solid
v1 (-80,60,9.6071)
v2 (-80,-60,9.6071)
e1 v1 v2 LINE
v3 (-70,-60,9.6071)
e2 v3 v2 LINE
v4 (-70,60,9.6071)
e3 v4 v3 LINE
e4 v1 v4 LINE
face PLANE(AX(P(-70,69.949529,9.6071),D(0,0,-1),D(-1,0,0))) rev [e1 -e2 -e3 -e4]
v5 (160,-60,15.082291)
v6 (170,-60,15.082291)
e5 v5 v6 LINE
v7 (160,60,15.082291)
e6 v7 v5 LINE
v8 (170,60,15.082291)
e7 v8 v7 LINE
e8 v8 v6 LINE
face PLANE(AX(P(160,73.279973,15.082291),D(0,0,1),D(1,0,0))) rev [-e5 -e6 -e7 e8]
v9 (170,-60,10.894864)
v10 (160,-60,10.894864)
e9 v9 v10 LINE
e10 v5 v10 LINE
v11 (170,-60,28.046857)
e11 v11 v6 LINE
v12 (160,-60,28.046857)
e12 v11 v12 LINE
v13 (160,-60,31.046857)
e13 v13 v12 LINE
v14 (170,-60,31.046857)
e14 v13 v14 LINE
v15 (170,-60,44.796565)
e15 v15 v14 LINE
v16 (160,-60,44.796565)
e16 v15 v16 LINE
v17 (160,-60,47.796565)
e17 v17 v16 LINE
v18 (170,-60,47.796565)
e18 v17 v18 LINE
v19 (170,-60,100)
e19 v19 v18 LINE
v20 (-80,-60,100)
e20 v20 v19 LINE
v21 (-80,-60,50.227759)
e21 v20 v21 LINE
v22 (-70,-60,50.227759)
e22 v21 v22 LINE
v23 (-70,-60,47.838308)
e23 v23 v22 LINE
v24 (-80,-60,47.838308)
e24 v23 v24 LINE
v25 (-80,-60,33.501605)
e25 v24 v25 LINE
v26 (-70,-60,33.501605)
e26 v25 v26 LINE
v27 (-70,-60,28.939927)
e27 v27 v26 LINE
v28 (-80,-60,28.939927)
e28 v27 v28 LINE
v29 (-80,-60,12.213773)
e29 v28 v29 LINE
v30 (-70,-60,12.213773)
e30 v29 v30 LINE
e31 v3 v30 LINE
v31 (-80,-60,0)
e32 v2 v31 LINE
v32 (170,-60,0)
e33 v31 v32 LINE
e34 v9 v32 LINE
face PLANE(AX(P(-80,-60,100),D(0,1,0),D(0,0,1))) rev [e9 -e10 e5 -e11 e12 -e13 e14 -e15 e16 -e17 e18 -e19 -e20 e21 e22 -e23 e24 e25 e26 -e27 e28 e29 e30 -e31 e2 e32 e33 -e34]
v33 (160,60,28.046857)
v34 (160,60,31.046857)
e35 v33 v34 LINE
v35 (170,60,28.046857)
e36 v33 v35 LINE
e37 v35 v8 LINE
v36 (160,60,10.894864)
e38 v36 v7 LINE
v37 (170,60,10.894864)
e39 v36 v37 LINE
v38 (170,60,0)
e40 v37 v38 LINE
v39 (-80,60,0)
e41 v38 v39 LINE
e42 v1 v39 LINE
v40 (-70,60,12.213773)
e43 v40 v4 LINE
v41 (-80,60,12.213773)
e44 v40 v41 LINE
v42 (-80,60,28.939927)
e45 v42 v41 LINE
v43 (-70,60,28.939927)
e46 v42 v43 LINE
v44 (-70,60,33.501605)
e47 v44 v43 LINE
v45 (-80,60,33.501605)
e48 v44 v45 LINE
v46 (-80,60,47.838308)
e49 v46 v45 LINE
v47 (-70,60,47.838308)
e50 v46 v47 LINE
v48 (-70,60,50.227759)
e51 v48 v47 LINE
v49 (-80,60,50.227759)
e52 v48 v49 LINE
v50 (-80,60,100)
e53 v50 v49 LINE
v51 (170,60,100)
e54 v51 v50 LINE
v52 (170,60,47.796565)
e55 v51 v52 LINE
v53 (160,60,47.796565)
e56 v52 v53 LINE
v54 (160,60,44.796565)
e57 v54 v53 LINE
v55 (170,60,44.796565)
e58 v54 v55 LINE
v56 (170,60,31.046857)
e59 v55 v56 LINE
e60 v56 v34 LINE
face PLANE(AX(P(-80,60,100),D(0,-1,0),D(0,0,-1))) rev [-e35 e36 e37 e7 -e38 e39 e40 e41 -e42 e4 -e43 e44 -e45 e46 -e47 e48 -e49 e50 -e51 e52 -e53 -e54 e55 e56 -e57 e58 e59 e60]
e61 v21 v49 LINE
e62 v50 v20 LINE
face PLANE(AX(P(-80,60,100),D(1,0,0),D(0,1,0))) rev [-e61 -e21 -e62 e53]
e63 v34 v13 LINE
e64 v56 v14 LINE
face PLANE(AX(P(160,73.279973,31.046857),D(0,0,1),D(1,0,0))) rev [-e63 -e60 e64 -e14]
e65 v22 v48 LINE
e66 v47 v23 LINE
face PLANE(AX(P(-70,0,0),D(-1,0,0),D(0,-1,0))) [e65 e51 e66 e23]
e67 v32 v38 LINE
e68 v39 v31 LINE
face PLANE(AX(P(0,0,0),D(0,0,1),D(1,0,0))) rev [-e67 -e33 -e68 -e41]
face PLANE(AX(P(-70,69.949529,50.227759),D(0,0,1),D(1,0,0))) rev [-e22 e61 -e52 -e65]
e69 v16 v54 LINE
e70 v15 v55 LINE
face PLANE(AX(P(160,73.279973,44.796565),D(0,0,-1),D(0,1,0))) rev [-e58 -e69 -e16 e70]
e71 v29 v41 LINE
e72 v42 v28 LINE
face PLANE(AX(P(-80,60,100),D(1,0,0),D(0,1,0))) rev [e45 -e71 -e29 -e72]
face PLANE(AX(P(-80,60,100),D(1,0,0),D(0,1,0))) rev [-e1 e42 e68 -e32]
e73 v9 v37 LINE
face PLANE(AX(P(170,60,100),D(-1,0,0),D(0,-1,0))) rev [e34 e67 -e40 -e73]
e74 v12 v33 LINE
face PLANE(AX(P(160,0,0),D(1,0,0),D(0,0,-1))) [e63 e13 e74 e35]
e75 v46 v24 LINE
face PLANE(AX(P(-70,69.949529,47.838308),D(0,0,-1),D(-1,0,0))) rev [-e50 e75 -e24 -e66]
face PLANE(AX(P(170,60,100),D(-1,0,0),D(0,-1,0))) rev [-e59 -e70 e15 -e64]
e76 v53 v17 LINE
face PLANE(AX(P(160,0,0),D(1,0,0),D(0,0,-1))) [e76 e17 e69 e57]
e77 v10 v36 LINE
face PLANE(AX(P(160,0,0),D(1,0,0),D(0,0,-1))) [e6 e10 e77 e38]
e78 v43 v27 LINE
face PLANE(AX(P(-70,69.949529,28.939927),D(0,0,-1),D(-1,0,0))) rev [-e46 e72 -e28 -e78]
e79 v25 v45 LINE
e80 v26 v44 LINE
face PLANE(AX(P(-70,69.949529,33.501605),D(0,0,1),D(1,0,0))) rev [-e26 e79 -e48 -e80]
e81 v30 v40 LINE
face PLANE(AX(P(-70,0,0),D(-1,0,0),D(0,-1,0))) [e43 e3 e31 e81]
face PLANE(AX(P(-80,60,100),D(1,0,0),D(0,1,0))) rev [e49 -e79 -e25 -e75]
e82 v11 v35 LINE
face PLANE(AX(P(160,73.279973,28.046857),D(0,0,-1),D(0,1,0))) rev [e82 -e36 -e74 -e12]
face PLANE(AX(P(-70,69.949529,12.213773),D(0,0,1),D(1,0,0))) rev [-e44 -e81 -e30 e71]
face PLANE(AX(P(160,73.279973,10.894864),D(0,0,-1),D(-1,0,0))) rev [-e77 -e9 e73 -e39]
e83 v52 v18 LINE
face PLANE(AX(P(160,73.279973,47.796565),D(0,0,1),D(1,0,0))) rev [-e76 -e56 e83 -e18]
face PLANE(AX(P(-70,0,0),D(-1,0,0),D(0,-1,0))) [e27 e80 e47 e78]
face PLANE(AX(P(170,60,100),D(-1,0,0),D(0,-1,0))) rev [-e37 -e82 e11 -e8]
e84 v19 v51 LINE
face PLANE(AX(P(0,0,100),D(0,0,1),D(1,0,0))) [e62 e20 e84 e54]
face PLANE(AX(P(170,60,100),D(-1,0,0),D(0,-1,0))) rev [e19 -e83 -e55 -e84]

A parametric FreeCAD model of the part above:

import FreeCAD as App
import Part
import Sketcher
from FreeCAD import Vector
Q = App.Units.Quantity

doc = App.newDocument("Part")
body = doc.addObject("PartDesign::Body", "Body")

# Sketch on XY plane
sketch1 = doc.addObject("Sketcher::SketchObject", "Sketch")
body.addObject(sketch1)
sketch1.AttachmentSupport = (doc.XY_Plane, [""])
sketch1.MapMode = "FlatFace"
sketch1.addGeometry([
    Part.LineSegment(Vector(-80, 60, 0), Vector(-80, -60, 0)),
    Part.LineSegment(Vector(-80, -60, 0), Vector(170, -60, 0)),
    Part.LineSegment(Vector(170, -60, 0), Vector(170, 60, 0)),
    Part.LineSegment(Vector(170, 60, 0), Vector(-80, 60, 0)),
], False)
sketch1.addConstraint([
    Sketcher.Constraint("Coincident", 0, 2, 1, 1),
    Sketcher.Constraint("Coincident", 1, 2, 2, 1),
    Sketcher.Constraint("Coincident", 2, 2, 3, 1),
    Sketcher.Constraint("Coincident", 3, 2, 0, 1),
    Sketcher.Constraint("Vertical", 0),
    Sketcher.Constraint("Horizontal", 1),
    Sketcher.Constraint("Vertical", 2),
    Sketcher.Constraint("Horizontal", 3),
    Sketcher.Constraint("DistanceX", 1, 1, 1, 2, Q("250 mm")),
    Sketcher.Constraint("DistanceY", 0, 2, 0, 1, Q("120 mm")),
    Sketcher.Constraint("DistanceX", 0, 2, -1, 1, Q("80 mm")),
    Sketcher.Constraint("DistanceY", 0, 2, -1, 1, Q("60 mm")),
])
pad1 = doc.addObject("PartDesign::Pad", "Pad")
body.addObject(pad1)
pad1.Profile = sketch1
pad1.Length = 100

# Sketch on YZ plane
sketch2 = doc.addObject("Sketcher::SketchObject", "Sketch001")
body.addObject(sketch2)
sketch2.AttachmentSupport = (doc.YZ_Plane, [""])
sketch2.MapMode = "FlatFace"
sketch2.AttachmentOffset = App.Placement(Vector(0, 0, 170), App.Rotation())
sketch2.addGeometry([
    Part.LineSegment(Vector(73.3, 47.8, 0), Vector(-67.8, 47.8, 0)),  # 0
    Part.LineSegment(Vector(-67.8, 47.8, 0), Vector(-67.8, 44.8, 0)),  # 1
    Part.LineSegment(Vector(-67.8, 44.8, 0), Vector(73.3, 44.8, 0)),  # 2
    Part.LineSegment(Vector(73.3, 44.8, 0), Vector(73.3, 47.8, 0)),  # 3
    Part.LineSegment(Vector(73.3, 31, 0), Vector(-67.8, 31, 0)),  # 4
    Part.LineSegment(Vector(-67.8, 31, 0), Vector(-67.8, 28, 0)),  # 5
    Part.LineSegment(Vector(-67.8, 28, 0), Vector(73.3, 28, 0)),  # 6
    Part.LineSegment(Vector(73.3, 28, 0), Vector(73.3, 31, 0)),  # 7
    Part.LineSegment(Vector(73.3, 15.1, 0), Vector(-67.8, 15.1, 0)),  # 8
    Part.LineSegment(Vector(-67.8, 15.1, 0), Vector(-67.8, 10.9, 0)),  # 9
    Part.LineSegment(Vector(-67.8, 10.9, 0), Vector(73.3, 10.9, 0)),  # 10
    Part.LineSegment(Vector(73.3, 10.9, 0), Vector(73.3, 15.1, 0)),  # 11
], False)
sketch2.addConstraint([
    Sketcher.Constraint("Coincident", 0, 2, 1, 1),
    Sketcher.Constraint("Coincident", 1, 2, 2, 1),
    Sketcher.Constraint("Coincident", 2, 2, 3, 1),
    Sketcher.Constraint("Coincident", 3, 2, 0, 1),
    Sketcher.Constraint("Coincident", 4, 2, 5, 1),
    Sketcher.Constraint("Coincident", 5, 2, 6, 1),
    Sketcher.Constraint("Coincident", 6, 2, 7, 1),
    Sketcher.Constraint("Coincident", 7, 2, 4, 1),
    Sketcher.Constraint("Coincident", 8, 2, 9, 1),
    Sketcher.Constraint("Coincident", 9, 2, 10, 1),
    Sketcher.Constraint("Coincident", 10, 2, 11, 1),
    Sketcher.Constraint("Coincident", 11, 2, 8, 1),
    Sketcher.Constraint("Horizontal", 0),
    Sketcher.Constraint("Vertical", 1),
    Sketcher.Constraint("Horizontal", 2),
    Sketcher.Constraint("Vertical", 3),
    Sketcher.Constraint("Horizontal", 4),
    Sketcher.Constraint("Vertical", 5),
    Sketcher.Constraint("Horizontal", 6),
    Sketcher.Constraint("Vertical", 7),
    Sketcher.Constraint("Horizontal", 8),
    Sketcher.Constraint("Vertical", 9),
    Sketcher.Constraint("Horizontal", 10),
    Sketcher.Constraint("Vertical", 11),
    Sketcher.Constraint("Vertical", 1, 2, 4, 2),
    Sketcher.Constraint("Vertical", 3, 2, 6, 2),
    Sketcher.Constraint("Vertical", 5, 2, 8, 2),
    Sketcher.Constraint("Vertical", 7, 2, 10, 2),
    Sketcher.Constraint("Equal", 3, 5),
    Sketcher.Constraint("DistanceY", 1, 2, 1, 1, Q("3 mm")),
    Sketcher.Constraint("DistanceY", 9, 2, 1, 2, Q("33.901701 mm")),
    Sketcher.Constraint("DistanceX", 0, 2, 0, 1, Q("141.063948 mm")),
    Sketcher.Constraint("DistanceY", 9, 2, 9, 1, Q("4.187427 mm")),
    Sketcher.Constraint("DistanceY", -1, 1, 8, 2, Q("15.082291 mm")),
    Sketcher.Constraint("DistanceY", 4, 2, 1, 2, Q("13.749708 mm")),
    Sketcher.Constraint("DistanceX", 0, 2, -1, 1, Q("67.783975 mm")),
])
pocket1 = doc.addObject("PartDesign::Pocket", "Pocket")
body.addObject(pocket1)
pocket1.Profile = sketch2
pocket1.Length = 10

# Sketch on YZ plane
sketch3 = doc.addObject("Sketcher::SketchObject", "Sketch002")
body.addObject(sketch3)
sketch3.AttachmentSupport = (doc.YZ_Plane, [""])
sketch3.MapMode = "FlatFace"
sketch3.AttachmentOffset = App.Placement(Vector(0, 0, -80), App.Rotation())
sketch3.addGeometry([
    Part.LineSegment(Vector(69.9, 9.6, 0), Vector(-68.9, 9.6, 0)),  # 0
    Part.LineSegment(Vector(-68.9, 9.6, 0), Vector(-68.9, 12.2, 0)),  # 1
    Part.LineSegment(Vector(-68.9, 12.2, 0), Vector(69.9, 12.2, 0)),  # 2
    Part.LineSegment(Vector(69.9, 12.2, 0), Vector(69.9, 9.6, 0)),  # 3
    Part.LineSegment(Vector(69.9, 28.9, 0), Vector(-68.9, 28.9, 0)),  # 4
    Part.LineSegment(Vector(-68.9, 28.9, 0), Vector(-68.9, 33.5, 0)),  # 5
    Part.LineSegment(Vector(-68.9, 33.5, 0), Vector(69.9, 33.5, 0)),  # 6
    Part.LineSegment(Vector(69.9, 33.5, 0), Vector(69.9, 28.9, 0)),  # 7
    Part.LineSegment(Vector(69.9, 47.8, 0), Vector(-68.9, 47.8, 0)),  # 8
    Part.LineSegment(Vector(-68.9, 47.8, 0), Vector(-68.9, 50.2, 0)),  # 9
    Part.LineSegment(Vector(-68.9, 50.2, 0), Vector(69.9, 50.2, 0)),  # 10
    Part.LineSegment(Vector(69.9, 50.2, 0), Vector(69.9, 47.8, 0)),  # 11
], False)
sketch3.addConstraint([
    Sketcher.Constraint("Coincident", 0, 2, 1, 1),
    Sketcher.Constraint("Coincident", 1, 2, 2, 1),
    Sketcher.Constraint("Coincident", 2, 2, 3, 1),
    Sketcher.Constraint("Coincident", 3, 2, 0, 1),
    Sketcher.Constraint("Coincident", 4, 2, 5, 1),
    Sketcher.Constraint("Coincident", 5, 2, 6, 1),
    Sketcher.Constraint("Coincident", 6, 2, 7, 1),
    Sketcher.Constraint("Coincident", 7, 2, 4, 1),
    Sketcher.Constraint("Coincident", 8, 2, 9, 1),
    Sketcher.Constraint("Coincident", 9, 2, 10, 1),
    Sketcher.Constraint("Coincident", 10, 2, 11, 1),
    Sketcher.Constraint("Coincident", 11, 2, 8, 1),
    Sketcher.Constraint("Horizontal", 0),
    Sketcher.Constraint("Vertical", 1),
    Sketcher.Constraint("Horizontal", 2),
    Sketcher.Constraint("Vertical", 3),
    Sketcher.Constraint("Horizontal", 4),
    Sketcher.Constraint("Vertical", 5),
    Sketcher.Constraint("Horizontal", 6),
    Sketcher.Constraint("Vertical", 7),
    Sketcher.Constraint("Horizontal", 8),
    Sketcher.Constraint("Vertical", 9),
    Sketcher.Constraint("Horizontal", 10),
    Sketcher.Constraint("Vertical", 11),
    Sketcher.Constraint("Vertical", 1, 2, 4, 2),
    Sketcher.Constraint("Vertical", 3, 2, 6, 2),
    Sketcher.Constraint("Vertical", 5, 2, 8, 2),
    Sketcher.Constraint("Vertical", 7, 2, 10, 2),
    Sketcher.Constraint("DistanceY", 5, 1, 5, 2, Q("4.561678 mm")),
    Sketcher.Constraint("DistanceY", 9, 1, 9, 2, Q("2.389451 mm")),
    Sketcher.Constraint("DistanceY", -1, 1, 0, 2, Q("9.6071 mm")),
    Sketcher.Constraint("DistanceX", 0, 2, 0, 1, Q("138.805354 mm")),
    Sketcher.Constraint("DistanceY", 1, 1, 1, 2, Q("2.606673 mm")),
    Sketcher.Constraint("DistanceX", -1, 1, 2, 2, Q("69.949529 mm")),
    Sketcher.Constraint("DistanceY", -1, 1, 8, 2, Q("47.838308 mm")),
    Sketcher.Constraint("DistanceY", 4, 2, 8, 2, Q("18.898382 mm")),
])
pocket2 = doc.addObject("PartDesign::Pocket", "Pocket001")
body.addObject(pocket2)
pocket2.Profile = sketch3
pocket2.Length = 10
pocket2.Reversed = True

doc.recompute()
